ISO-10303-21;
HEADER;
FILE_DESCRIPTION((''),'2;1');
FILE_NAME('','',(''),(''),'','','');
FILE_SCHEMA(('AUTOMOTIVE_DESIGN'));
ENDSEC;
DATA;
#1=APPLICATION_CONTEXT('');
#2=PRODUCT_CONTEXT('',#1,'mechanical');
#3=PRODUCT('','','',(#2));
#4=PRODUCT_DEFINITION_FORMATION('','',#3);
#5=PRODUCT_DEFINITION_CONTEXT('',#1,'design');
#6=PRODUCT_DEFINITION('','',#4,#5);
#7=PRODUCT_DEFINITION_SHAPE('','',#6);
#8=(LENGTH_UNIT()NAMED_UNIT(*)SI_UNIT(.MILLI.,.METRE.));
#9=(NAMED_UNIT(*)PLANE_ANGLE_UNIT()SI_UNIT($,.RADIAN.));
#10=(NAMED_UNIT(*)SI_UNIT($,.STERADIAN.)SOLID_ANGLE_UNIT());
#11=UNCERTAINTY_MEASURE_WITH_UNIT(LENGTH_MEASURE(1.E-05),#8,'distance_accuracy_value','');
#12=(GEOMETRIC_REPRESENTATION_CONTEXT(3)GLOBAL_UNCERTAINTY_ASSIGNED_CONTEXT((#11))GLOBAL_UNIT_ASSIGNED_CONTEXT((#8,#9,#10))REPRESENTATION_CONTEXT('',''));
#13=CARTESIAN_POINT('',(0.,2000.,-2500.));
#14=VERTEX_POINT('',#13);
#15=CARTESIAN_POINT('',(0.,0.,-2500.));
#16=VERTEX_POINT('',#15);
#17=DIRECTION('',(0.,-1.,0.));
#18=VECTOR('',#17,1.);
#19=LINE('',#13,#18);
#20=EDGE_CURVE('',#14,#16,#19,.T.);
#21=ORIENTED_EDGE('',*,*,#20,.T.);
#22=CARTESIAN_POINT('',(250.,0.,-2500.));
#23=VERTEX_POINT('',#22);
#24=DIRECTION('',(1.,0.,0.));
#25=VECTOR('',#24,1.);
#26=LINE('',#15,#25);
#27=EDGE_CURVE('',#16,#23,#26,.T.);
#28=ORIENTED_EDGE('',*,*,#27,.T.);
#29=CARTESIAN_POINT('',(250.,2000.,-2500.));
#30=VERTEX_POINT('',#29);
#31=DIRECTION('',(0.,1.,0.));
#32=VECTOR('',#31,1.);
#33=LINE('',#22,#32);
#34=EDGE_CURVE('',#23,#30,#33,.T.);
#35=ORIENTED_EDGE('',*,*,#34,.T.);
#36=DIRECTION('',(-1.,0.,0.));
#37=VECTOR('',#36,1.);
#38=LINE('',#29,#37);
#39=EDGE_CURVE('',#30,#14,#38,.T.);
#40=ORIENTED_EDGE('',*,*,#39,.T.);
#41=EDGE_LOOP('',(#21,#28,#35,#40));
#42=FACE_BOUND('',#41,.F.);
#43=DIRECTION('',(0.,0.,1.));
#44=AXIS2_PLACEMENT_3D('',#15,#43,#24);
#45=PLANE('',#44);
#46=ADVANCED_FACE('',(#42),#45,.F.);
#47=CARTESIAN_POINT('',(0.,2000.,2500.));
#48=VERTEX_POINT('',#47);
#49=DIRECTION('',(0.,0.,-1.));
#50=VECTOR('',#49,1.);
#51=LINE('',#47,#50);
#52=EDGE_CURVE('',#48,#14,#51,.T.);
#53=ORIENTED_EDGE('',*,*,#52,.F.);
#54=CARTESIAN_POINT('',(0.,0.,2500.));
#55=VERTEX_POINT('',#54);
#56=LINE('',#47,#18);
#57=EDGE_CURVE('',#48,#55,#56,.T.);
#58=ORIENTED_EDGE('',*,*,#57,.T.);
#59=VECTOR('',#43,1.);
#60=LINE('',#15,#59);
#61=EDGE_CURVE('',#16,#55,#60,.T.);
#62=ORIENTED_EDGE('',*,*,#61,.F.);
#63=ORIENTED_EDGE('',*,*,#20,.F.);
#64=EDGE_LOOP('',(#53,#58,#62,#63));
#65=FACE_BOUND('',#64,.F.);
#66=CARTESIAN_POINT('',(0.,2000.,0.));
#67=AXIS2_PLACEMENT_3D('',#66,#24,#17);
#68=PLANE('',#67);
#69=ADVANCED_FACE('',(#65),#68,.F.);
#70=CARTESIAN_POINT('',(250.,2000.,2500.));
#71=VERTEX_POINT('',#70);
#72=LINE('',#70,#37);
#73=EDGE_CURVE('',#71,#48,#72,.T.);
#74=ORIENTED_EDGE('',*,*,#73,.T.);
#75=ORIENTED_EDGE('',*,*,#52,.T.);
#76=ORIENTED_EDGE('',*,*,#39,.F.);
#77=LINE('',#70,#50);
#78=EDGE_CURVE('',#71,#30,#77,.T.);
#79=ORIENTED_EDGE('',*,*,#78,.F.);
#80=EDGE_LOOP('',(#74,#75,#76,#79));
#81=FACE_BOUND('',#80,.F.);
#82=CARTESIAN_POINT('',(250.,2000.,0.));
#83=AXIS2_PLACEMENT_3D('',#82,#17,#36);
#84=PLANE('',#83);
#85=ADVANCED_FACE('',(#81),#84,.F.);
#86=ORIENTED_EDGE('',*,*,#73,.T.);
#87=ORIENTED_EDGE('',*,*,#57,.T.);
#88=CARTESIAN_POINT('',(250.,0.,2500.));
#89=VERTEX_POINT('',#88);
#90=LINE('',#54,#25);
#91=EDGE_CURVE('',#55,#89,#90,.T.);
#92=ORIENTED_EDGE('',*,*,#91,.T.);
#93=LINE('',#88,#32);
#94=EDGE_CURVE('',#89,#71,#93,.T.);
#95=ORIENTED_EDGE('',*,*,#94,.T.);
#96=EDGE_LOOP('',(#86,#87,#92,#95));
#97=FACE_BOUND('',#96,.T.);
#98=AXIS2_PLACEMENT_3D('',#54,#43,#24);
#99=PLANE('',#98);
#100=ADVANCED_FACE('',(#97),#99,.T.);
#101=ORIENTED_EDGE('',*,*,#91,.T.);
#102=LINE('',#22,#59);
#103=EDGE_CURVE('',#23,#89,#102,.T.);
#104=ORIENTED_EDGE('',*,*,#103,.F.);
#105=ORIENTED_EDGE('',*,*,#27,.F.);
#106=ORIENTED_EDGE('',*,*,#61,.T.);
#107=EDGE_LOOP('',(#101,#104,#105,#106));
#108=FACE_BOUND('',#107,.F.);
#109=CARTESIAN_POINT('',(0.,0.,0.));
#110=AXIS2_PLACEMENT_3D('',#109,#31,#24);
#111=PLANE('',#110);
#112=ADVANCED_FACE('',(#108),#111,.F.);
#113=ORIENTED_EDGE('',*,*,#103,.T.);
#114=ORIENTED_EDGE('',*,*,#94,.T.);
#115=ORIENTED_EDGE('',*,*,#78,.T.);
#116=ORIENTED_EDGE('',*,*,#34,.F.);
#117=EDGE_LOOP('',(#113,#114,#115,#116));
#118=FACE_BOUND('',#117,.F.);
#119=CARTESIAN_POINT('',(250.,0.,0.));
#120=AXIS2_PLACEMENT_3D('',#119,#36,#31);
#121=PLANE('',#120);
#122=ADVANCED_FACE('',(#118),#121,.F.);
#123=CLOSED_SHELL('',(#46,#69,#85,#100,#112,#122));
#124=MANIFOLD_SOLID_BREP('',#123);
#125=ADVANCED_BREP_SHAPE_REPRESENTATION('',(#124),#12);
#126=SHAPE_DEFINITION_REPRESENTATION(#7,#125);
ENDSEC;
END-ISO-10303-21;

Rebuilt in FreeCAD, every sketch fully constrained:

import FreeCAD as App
import Part
import Sketcher

V = App.Vector
Q = App.Units.Quantity


def add_polygon(sketch, points):
    """Adds a closed chain of lines whose ends are joined by coincident constraints."""
    first, n = sketch.GeometryCount, len(points)
    for a, b in zip(points, points[1:] + points[:1]):
        sketch.addGeometry(Part.LineSegment(App.Vector(*a, 0), App.Vector(*b, 0)), False)
    for i in range(n):
        sketch.addConstraint(Sketcher.Constraint("Coincident", first + i, 2, first + (i + 1) % n, 1))

doc = App.newDocument("Part")
params = doc.addObject("Spreadsheet::Sheet", "Params")
for row, (alias, value) in enumerate([
    ("sketch1_width", "250 mm"),
    ("sketch1_height", "2000 mm"),
    ("pad1_length", "5000 mm"),
], start=1):
    params.set(f"A{row}", alias)
    params.set(f"B{row}", "=" + value)
    params.setAlias(f"B{row}", alias)

body = doc.addObject("PartDesign::Body", "Body")

# Sketch on XY plane
sketch1 = body.newObject("Sketcher::SketchObject", "Sketch")
sketch1.AttachmentSupport = (doc.getObject("XY_Plane"), [""])
sketch1.MapMode = "FlatFace"
add_polygon(sketch1, [(0, 2000), (0, 0), (250, 0), (250, 2000)])  # lines 0-3
sketch1.addConstraint([
    Sketcher.Constraint("Vertical", 0),
    Sketcher.Constraint("Horizontal", 1),
    Sketcher.Constraint("Vertical", 2),
    Sketcher.Constraint("Horizontal", 3),
    Sketcher.Constraint("Coincident", 0, 2, -1, 1),
    Sketcher.Constraint("DistanceX", 1, 1, 1, 2, Q("250 mm")),
    Sketcher.Constraint("DistanceY", 0, 2, 0, 1, Q("2000 mm")),
])
sketch1.setExpression("Constraints[9]", "Params.sketch1_width")
sketch1.setExpression("Constraints[10]", "Params.sketch1_height")
pad1 = body.newObject("PartDesign::Pad", "Pad")
pad1.Profile = sketch1
pad1.setExpression("Length", "Params.pad1_length")
pad1.Midplane = True

doc.recompute()
